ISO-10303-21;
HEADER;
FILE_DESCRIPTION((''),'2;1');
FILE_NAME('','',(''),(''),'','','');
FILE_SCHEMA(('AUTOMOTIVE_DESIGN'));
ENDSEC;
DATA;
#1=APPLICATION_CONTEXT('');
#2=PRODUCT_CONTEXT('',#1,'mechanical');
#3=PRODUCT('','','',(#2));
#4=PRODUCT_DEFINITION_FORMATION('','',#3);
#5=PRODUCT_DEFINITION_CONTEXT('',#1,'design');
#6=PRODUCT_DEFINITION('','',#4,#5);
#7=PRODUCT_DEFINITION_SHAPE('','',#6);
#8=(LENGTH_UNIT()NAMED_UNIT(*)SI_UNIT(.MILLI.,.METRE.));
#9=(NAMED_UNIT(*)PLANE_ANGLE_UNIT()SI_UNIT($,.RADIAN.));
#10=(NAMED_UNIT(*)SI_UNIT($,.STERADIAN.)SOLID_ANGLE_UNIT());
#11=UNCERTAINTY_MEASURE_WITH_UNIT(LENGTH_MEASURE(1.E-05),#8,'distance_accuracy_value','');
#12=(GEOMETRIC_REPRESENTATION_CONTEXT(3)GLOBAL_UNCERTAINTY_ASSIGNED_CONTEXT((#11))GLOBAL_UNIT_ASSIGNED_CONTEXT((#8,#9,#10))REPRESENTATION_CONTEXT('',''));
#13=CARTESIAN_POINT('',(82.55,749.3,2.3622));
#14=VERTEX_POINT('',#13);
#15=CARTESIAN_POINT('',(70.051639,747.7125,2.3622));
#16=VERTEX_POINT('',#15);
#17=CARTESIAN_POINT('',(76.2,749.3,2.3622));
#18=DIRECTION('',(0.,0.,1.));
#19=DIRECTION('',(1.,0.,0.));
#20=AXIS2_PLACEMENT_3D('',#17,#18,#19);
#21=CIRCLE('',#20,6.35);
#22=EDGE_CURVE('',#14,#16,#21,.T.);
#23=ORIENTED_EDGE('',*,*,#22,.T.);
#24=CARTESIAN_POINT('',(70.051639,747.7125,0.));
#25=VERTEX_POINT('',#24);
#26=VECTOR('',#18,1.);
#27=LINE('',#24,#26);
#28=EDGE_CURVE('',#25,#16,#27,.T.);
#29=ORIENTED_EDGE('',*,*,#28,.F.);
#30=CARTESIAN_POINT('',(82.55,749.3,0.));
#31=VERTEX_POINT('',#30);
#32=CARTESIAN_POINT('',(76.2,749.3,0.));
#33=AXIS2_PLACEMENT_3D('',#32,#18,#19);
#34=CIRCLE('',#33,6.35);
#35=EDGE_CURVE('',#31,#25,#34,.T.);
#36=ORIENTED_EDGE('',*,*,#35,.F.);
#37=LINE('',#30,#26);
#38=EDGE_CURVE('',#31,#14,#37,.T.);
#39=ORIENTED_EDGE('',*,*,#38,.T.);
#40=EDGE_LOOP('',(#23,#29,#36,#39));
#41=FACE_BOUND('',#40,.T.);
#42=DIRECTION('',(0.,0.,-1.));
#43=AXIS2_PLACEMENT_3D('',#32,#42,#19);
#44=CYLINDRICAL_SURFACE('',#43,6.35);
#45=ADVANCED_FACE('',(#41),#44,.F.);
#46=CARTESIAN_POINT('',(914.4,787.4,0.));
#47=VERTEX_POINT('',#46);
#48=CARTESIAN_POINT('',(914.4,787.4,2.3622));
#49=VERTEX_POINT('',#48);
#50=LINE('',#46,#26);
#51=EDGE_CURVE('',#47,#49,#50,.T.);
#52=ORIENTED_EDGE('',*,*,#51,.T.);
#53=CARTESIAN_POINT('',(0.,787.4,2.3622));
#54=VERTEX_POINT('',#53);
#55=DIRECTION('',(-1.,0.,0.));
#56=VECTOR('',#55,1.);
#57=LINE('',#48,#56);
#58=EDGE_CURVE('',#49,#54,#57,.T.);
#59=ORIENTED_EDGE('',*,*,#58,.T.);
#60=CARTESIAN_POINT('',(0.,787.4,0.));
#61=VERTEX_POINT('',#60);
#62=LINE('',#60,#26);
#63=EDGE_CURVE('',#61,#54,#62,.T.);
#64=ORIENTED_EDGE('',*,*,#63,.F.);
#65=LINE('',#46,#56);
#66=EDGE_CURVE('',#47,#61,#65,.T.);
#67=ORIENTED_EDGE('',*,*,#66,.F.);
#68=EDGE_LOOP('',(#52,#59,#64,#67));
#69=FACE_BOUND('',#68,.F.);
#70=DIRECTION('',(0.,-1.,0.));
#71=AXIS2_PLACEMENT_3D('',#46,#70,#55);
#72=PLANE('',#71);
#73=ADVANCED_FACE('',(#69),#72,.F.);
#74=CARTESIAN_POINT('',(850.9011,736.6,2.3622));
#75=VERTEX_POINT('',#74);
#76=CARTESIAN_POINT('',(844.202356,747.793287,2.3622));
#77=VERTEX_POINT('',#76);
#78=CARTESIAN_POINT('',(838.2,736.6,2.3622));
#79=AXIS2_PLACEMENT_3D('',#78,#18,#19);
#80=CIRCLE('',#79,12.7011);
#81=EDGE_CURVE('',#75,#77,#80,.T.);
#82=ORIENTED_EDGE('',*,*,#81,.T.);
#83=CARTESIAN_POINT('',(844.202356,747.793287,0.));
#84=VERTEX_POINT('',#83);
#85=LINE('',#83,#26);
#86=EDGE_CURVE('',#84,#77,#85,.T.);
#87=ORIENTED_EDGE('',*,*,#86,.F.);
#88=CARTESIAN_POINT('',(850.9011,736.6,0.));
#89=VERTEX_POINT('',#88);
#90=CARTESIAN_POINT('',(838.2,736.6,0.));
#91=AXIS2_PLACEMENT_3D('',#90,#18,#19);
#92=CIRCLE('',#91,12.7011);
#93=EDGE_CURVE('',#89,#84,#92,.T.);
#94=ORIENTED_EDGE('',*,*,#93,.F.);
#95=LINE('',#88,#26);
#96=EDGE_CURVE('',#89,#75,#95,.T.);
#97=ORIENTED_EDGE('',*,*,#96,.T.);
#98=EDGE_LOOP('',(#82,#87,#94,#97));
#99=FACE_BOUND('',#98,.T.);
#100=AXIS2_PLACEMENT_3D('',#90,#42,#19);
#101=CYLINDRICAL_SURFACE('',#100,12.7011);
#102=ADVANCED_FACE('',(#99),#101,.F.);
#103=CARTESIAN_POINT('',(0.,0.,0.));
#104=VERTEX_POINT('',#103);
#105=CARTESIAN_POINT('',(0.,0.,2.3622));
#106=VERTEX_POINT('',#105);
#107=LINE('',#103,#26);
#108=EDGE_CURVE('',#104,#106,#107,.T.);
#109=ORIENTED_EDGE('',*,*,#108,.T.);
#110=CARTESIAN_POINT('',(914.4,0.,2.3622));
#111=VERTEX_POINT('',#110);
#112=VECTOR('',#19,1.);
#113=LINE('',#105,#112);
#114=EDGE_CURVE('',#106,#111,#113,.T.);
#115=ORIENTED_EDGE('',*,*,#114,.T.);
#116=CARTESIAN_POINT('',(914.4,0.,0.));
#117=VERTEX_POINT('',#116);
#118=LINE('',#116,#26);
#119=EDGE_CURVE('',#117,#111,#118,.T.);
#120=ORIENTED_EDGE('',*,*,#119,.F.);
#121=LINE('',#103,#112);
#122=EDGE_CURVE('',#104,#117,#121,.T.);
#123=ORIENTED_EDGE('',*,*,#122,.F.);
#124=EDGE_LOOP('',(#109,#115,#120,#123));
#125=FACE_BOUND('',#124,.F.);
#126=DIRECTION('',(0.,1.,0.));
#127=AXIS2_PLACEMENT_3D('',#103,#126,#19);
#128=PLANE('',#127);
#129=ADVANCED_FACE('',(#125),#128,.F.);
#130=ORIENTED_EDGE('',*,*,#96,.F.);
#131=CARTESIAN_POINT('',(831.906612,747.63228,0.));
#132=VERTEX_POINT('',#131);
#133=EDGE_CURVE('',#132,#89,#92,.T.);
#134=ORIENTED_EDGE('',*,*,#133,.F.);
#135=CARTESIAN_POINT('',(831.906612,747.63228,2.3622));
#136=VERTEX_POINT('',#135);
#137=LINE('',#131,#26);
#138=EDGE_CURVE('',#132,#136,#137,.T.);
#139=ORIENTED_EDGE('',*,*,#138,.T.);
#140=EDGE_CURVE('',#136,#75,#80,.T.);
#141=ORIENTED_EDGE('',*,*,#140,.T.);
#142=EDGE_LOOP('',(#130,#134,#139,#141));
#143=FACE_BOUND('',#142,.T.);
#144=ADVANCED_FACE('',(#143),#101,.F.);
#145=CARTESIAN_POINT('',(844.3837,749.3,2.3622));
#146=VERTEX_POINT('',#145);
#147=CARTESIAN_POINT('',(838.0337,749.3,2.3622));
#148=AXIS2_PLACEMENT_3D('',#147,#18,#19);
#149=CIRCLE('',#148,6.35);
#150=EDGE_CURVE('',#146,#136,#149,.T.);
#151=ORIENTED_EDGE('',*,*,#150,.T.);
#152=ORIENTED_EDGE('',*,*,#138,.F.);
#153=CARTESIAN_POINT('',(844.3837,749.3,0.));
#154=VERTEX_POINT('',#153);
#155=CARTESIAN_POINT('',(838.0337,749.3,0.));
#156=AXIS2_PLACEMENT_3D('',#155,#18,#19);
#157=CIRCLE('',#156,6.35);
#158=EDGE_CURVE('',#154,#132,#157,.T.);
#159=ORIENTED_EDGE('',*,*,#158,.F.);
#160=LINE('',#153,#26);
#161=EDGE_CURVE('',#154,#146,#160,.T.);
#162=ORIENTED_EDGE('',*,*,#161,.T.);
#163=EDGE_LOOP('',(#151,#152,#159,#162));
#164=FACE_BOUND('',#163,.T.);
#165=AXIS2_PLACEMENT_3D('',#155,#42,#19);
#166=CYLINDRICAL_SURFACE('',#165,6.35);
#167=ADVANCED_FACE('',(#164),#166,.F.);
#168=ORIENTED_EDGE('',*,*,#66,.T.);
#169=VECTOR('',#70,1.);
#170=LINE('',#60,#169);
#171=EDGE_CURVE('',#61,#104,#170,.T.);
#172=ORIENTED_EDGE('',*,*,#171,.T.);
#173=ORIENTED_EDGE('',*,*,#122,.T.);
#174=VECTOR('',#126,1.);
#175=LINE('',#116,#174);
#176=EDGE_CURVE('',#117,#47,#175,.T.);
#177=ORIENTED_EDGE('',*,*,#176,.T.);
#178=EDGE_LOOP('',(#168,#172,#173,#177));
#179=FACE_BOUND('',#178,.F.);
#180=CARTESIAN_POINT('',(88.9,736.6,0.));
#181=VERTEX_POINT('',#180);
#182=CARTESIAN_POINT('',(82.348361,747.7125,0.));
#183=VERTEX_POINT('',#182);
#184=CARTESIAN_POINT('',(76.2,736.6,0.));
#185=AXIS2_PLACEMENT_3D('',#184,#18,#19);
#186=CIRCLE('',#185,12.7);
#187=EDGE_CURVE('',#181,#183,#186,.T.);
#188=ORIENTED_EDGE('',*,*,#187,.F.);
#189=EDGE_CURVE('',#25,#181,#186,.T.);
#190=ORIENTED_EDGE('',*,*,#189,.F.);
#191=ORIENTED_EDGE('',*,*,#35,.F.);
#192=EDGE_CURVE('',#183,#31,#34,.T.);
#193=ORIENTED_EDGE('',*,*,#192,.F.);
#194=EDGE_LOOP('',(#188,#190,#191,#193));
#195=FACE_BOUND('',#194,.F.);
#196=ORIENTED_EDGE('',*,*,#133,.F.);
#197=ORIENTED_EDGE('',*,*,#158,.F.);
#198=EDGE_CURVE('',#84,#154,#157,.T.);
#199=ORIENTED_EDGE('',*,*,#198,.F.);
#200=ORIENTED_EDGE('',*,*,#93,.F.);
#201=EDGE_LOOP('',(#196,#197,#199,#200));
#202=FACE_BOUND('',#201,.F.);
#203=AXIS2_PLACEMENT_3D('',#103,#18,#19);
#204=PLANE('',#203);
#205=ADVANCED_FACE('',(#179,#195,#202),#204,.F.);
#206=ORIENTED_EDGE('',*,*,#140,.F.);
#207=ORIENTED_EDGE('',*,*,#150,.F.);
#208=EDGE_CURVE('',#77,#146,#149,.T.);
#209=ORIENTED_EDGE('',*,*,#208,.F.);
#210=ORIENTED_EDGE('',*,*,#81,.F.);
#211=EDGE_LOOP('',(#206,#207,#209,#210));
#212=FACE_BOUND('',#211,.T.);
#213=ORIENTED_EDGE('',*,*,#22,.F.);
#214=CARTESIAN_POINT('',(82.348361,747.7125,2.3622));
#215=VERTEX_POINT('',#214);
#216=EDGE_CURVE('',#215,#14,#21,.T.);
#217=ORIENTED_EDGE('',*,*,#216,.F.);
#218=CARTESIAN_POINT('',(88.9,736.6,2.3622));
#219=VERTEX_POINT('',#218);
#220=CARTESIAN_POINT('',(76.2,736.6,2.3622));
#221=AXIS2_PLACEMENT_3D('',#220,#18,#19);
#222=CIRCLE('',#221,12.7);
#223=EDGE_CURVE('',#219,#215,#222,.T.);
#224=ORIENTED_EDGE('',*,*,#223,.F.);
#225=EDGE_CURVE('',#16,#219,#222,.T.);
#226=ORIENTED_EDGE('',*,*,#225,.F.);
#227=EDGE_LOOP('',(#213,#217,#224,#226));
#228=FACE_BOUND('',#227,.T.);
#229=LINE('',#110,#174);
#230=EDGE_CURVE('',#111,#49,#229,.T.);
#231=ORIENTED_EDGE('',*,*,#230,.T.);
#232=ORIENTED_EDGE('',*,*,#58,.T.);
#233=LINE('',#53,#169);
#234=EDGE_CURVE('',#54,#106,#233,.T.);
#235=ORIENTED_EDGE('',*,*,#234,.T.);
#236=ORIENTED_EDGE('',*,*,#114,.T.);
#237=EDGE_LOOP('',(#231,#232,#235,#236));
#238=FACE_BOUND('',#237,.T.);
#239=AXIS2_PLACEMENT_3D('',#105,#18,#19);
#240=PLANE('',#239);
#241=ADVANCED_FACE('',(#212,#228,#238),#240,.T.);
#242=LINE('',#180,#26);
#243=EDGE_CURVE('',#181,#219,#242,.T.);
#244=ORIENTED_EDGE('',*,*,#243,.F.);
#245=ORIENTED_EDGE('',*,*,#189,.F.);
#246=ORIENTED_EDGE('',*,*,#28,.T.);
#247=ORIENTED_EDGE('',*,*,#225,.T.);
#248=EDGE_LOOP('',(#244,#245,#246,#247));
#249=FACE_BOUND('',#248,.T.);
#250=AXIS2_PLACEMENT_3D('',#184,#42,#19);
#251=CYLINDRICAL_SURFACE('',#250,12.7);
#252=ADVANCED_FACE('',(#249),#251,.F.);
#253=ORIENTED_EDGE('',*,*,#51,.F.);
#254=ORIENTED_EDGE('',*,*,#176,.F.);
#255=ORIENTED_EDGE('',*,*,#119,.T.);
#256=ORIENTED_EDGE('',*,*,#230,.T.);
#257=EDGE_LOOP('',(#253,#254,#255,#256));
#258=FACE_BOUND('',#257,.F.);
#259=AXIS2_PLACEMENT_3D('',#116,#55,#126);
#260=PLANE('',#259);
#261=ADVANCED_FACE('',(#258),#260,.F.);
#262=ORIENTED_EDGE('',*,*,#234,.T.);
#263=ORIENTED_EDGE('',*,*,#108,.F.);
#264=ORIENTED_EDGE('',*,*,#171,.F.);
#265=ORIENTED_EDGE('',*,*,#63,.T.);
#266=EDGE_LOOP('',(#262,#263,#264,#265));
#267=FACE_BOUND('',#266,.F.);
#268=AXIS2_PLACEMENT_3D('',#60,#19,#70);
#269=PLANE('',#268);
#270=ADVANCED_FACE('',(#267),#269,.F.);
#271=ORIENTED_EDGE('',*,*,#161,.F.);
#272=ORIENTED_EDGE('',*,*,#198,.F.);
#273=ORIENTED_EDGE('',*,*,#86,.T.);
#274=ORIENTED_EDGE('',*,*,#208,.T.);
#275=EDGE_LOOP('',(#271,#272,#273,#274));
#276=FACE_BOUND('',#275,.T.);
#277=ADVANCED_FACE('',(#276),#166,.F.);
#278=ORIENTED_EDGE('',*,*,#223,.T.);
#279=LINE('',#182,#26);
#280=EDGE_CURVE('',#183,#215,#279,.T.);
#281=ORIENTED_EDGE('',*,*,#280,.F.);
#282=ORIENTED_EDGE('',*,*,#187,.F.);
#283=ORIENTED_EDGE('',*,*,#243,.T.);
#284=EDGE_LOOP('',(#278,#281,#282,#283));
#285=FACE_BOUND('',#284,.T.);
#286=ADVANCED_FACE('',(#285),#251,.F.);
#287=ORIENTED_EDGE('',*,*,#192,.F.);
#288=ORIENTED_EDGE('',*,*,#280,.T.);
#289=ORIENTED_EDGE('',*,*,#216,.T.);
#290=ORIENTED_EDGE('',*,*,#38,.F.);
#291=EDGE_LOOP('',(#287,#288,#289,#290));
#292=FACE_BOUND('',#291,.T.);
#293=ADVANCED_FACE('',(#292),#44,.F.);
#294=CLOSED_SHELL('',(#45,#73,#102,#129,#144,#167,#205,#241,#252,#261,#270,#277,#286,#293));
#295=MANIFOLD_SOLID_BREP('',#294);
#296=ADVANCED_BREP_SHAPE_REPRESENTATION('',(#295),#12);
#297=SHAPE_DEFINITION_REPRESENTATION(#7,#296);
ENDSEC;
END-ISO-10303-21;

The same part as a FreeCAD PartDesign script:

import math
import FreeCAD as App
import Part
import Sketcher
Q = App.Units.Quantity

doc = App.newDocument("Part")
params = doc.addObject("Spreadsheet::Sheet", "Params")
for row, (alias, value) in enumerate([
    ("sketch1_radius", "0.5 in"),
    ("sketch1_width", "36 in"),
    ("sketch1_height", "31 in"),
    ("sketch1_radius2", "0.25 in"),
    ("pad1_length", "0.093 in"),
], start=1):
    params.set(f"A{row}", alias)
    params.set(f"B{row}", "=" + value)
    params.setAlias(f"B{row}", alias)

body = doc.addObject("PartDesign::Body", "Body")

sketch1 = body.newObject("Sketcher::SketchObject", "Sketch")
sketch1.AttachmentSupport = (doc.getObject("XY_Plane"), [""])
sketch1.MapMode = "FlatFace"
sketch1.addGeometry(Part.LineSegment(App.Vector(0, 787.4, 0), App.Vector(0, 0, 0)), False)
sketch1.addGeometry(Part.LineSegment(App.Vector(0, 0, 0), App.Vector(914.4, 0, 0)), False)
sketch1.addGeometry(Part.LineSegment(App.Vector(914.4, 0, 0), App.Vector(914.4, 787.4, 0)), False)
sketch1.addGeometry(Part.LineSegment(App.Vector(914.4, 787.4, 0), App.Vector(0, 787.4, 0)), False)
sketch1.addGeometry(Part.ArcOfCircle(Part.Circle(App.Vector(76.2, 736.6, 0), App.Vector(0, 0, 1), 12.7), math.radians(118.955024), math.radians(421.044976)), False)
sketch1.addGeometry(Part.ArcOfCircle(Part.Circle(App.Vector(76.2, 749.3, 0), App.Vector(0, 0, 1), 6.35), math.radians(-14.477512), math.radians(194.477512)), False)
sketch1.addGeometry(Part.ArcOfCircle(Part.Circle(App.Vector(838.2, 736.6, 0), App.Vector(0, 0, 1), 12.7011), math.radians(119.702691), math.radians(421.797741)), False)
sketch1.addGeometry(Part.ArcOfCircle(Part.Circle(App.Vector(838.0337, 749.3, 0), App.Vector(0, 0, 1), 6.35), math.radians(-13.725923), math.radians(195.226355)), False)
sketch1.addConstraint(Sketcher.Constraint("Coincident", 0, 2, 1, 1))
sketch1.addConstraint(Sketcher.Constraint("Coincident", 1, 2, 2, 1))
sketch1.addConstraint(Sketcher.Constraint("Coincident", 2, 2, 3, 1))
sketch1.addConstraint(Sketcher.Constraint("Coincident", 3, 2, 0, 1))
sketch1.addConstraint(Sketcher.Constraint("Coincident", 4, 1, 5, 2))
sketch1.addConstraint(Sketcher.Constraint("Coincident", 5, 1, 4, 2))
sketch1.addConstraint(Sketcher.Constraint("Coincident", 6, 1, 7, 2))
sketch1.addConstraint(Sketcher.Constraint("Coincident", 7, 1, 6, 2))
sketch1.addConstraint(Sketcher.Constraint("Vertical", 0))
sketch1.addConstraint(Sketcher.Constraint("Horizontal", 1))
sketch1.addConstraint(Sketcher.Constraint("Vertical", 2))
sketch1.addConstraint(Sketcher.Constraint("Horizontal", 3))
sketch1.addConstraint(Sketcher.Constraint("Coincident", 0, 2, -1, 1))
sketch1.addConstraint(Sketcher.Constraint("Equal", 5, 7))
sketch1.addConstraint(Sketcher.Constraint("Horizontal", 4, 3, 6, 3))
sketch1.addConstraint(Sketcher.Constraint("Horizontal", 5, 3, 7, 3))
sketch1.addConstraint(Sketcher.Constraint("Horizontal", 4, 1, 5, 1))
sketch1.addConstraint(Sketcher.Constraint("Radius", 4, Q("0.5 in")))
sketch1.addConstraint(Sketcher.Constraint("DistanceX", 1, 1, 1, 2, Q("36 in")))
sketch1.addConstraint(Sketcher.Constraint("DistanceY", 0, 2, 0, 1, Q("31 in")))
sketch1.addConstraint(Sketcher.Constraint("Radius", 5, Q("0.25 in")))
sketch1.addConstraint(Sketcher.Constraint("DistanceX", -1, 1, 4, 3, Q("3 in")))
sketch1.addConstraint(Sketcher.Constraint("DistanceX", 6, 3, 1, 2, Q("3 in")))
sketch1.addConstraint(Sketcher.Constraint("DistanceY", 6, 3, 2, 2, Q("2 in")))
sketch1.addConstraint(Sketcher.Constraint("DistanceY", 4, 3, 5, 3, Q("0.5 in")))
sketch1.addConstraint(Sketcher.Constraint("Radius", 6, Q("12.701 mm")))
sketch1.addConstraint(Sketcher.Constraint("DistanceX", -1, 1, 7, 3, Q("838.0337 mm")))
sketch1.setExpression("Constraints[17]", "Params.sketch1_radius")
sketch1.setExpression("Constraints[18]", "Params.sketch1_width")
sketch1.setExpression("Constraints[19]", "Params.sketch1_height")
sketch1.setExpression("Constraints[20]", "Params.sketch1_radius2")
pad1 = body.newObject("PartDesign::Pad", "Pad")
pad1.Profile = sketch1
pad1.setExpression("Length", "Params.pad1_length")

doc.recompute()
